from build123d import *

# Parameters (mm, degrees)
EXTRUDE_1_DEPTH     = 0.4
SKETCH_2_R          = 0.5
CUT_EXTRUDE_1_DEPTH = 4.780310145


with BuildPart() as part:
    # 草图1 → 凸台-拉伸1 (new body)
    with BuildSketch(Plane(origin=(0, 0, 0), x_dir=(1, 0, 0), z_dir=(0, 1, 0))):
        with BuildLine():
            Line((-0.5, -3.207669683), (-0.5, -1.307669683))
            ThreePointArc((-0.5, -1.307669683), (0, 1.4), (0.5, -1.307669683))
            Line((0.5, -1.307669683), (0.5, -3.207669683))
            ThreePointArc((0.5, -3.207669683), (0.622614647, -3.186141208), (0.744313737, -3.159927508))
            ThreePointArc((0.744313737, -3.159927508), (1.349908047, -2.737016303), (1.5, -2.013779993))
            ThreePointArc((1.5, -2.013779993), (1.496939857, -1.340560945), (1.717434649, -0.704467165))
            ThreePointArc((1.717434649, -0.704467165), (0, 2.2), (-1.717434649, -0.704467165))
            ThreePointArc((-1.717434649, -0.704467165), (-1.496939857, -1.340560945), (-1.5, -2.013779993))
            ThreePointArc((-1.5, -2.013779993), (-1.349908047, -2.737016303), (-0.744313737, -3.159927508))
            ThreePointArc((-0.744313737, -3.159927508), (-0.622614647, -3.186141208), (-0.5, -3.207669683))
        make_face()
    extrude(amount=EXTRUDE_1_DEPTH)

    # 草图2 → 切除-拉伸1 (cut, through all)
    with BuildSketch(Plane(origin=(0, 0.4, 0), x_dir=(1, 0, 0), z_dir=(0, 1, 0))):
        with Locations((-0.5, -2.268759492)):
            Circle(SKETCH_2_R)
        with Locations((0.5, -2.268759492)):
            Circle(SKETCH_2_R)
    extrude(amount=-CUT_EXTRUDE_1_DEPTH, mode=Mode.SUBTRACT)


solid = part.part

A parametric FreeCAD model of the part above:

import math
import FreeCAD as App
import Part
import Sketcher
from FreeCAD import Vector

doc = App.newDocument("Part")
body = doc.addObject("PartDesign::Body", "Body")

# Sketch on XZ plane
sketch1 = doc.addObject("Sketcher::SketchObject", "Sketch")
body.addObject(sketch1)
sketch1.AttachmentSupport = (doc.XZ_Plane, [""])
sketch1.MapMode = "FlatFace"
sketch1.addGeometry(Part.LineSegment(Vector(-0.5, 3.21, 0), Vector(-0.5, 1.31, 0)), False)
sketch1.addGeometry(Part.ArcOfCircle(Part.Circle(Vector(0, 0, 0), Vector(0, 0, 1), 1.4), math.radians(111), math.radians(429)), False)
sketch1.addGeometry(Part.LineSegment(Vector(0.5, 1.31, 0), Vector(0.5, 3.21, 0)), False)
sketch1.addGeometry(Part.ArcOfCircle(Part.Circle(Vector(0, 0, 0), Vector(0, 0, 1), 3.25), math.radians(76.75), math.radians(81.14)), False)
sketch1.addGeometry(Part.ArcOfCircle(Part.Circle(Vector(0.52, 2.19, 0), Vector(0, 0, 1), 1), math.radians(-10), math.radians(77)), False)
sketch1.addGeometry(Part.ArcOfCircle(Part.Circle(Vector(3.47, 1.67, 0), Vector(0, 0, 1), 2), math.radians(170), math.radians(209)), False)
sketch1.addGeometry(Part.ArcOfCircle(Part.Circle(Vector(0, -0.24, 0), Vector(0, 0, 1), 1.96), math.radians(151), math.radians(389)), False)
sketch1.addGeometry(Part.ArcOfCircle(Part.Circle(Vector(-3.47, 1.67, 0), Vector(0, 0, 1), 2), math.radians(-29), math.radians(10)), False)
sketch1.addGeometry(Part.ArcOfCircle(Part.Circle(Vector(-0.52, 2.19, 0), Vector(0, 0, 1), 1), math.radians(103), math.radians(190)), False)
sketch1.addGeometry(Part.ArcOfCircle(Part.Circle(Vector(0, 0, 0), Vector(0, 0, 1), 3.25), math.radians(98.86), math.radians(103.25)), False)
sketch1.addConstraint(Sketcher.Constraint("Coincident", 0, 2, 1, 1))
sketch1.addConstraint(Sketcher.Constraint("Coincident", 1, 2, 2, 1))
sketch1.addConstraint(Sketcher.Constraint("Coincident", 2, 2, 3, 2))
sketch1.addConstraint(Sketcher.Constraint("Tangent", 3, 1, 4, 2))
sketch1.addConstraint(Sketcher.Constraint("Tangent", 4, 1, 5, 1))
sketch1.addConstraint(Sketcher.Constraint("Tangent", 5, 2, 6, 2))
sketch1.addConstraint(Sketcher.Constraint("Tangent", 6, 1, 7, 1))
sketch1.addConstraint(Sketcher.Constraint("Tangent", 7, 2, 8, 2))
sketch1.addConstraint(Sketcher.Constraint("Tangent", 8, 1, 9, 2))
sketch1.addConstraint(Sketcher.Constraint("Coincident", 9, 1, 0, 1))
sketch1.addConstraint(Sketcher.Constraint("Vertical", 0))
sketch1.addConstraint(Sketcher.Constraint("Vertical", 2))
sketch1.addConstraint(Sketcher.Constraint("Coincident", 1, 3, -1, 1))
sketch1.addConstraint(Sketcher.Constraint("Coincident", 3, 3, -1, 1))
sketch1.addConstraint(Sketcher.Constraint("Coincident", 9, 3, -1, 1))
sketch1.addConstraint(Sketcher.Constraint("Equal", 5, 7))
sketch1.addConstraint(Sketcher.Constraint("Equal", 4, 8))
sketch1.addConstraint(Sketcher.Constraint("Equal", 3, 9))
sketch1.addConstraint(Sketcher.Constraint("Symmetric", 5, 3, 7, 3, -2))
sketch1.addConstraint(Sketcher.Constraint("Horizontal", 0, 2, 1, 2))
sketch1.addConstraint(Sketcher.Constraint("Radius", 4, 1.0))
sketch1.addConstraint(Sketcher.Constraint("Radius", 5, 2.0))
sketch1.addConstraint(Sketcher.Constraint("Radius", 1, 1.4))
sketch1.addConstraint(Sketcher.Constraint("Radius", 6, 1.96))
sketch1.addConstraint(Sketcher.Constraint("DistanceY", 0, 2, 0, 1, 1.9))
sketch1.addConstraint(Sketcher.Constraint("DistanceX", 0, 2, 1, 2, 1.0))
sketch1.addConstraint(Sketcher.Constraint("DistanceX", 1, 2, 4, 1, 1.0))
sketch1.addConstraint(Sketcher.Constraint("DistanceY", 6, 3, -1, 1, 0.24))
pad1 = doc.addObject("PartDesign::Pad", "Pad")
body.addObject(pad1)
pad1.Profile = sketch1
pad1.Length = 0.4
pad1.Reversed = True

# Sketch on XZ plane
sketch2 = doc.addObject("Sketcher::SketchObject", "Sketch001")
body.addObject(sketch2)
sketch2.AttachmentSupport = (doc.XZ_Plane, [""])
sketch2.MapMode = "FlatFace"
sketch2.AttachmentOffset = App.Placement(Vector(0, 0, -0.4), App.Rotation())
sketch2.addGeometry(Part.Circle(Vector(-0.5, 2.3, 0), Vector(0, 0, 1), 0.5), False)
sketch2.addGeometry(Part.Circle(Vector(0.5, 2.3, 0), Vector(0, 0, 1), 0.5), False)
sketch2.addConstraint(Sketcher.Constraint("Equal", 0, 1))
sketch2.addConstraint(Sketcher.Constraint("Symmetric", 0, 3, 1, 3, -2))
sketch2.addConstraint(Sketcher.Constraint("Diameter", 0, 1.0))
sketch2.addConstraint(Sketcher.Constraint("DistanceX", 0, 3, 1, 3, 1.0))
sketch2.addConstraint(Sketcher.Constraint("DistanceY", -1, 1, 0, 3, 2.268759))
pocket1 = doc.addObject("PartDesign::Pocket", "Pocket")
body.addObject(pocket1)
pocket1.Profile = sketch2
pocket1.Type = "ThroughAll"
pocket1.Reversed = True

doc.recompute()
